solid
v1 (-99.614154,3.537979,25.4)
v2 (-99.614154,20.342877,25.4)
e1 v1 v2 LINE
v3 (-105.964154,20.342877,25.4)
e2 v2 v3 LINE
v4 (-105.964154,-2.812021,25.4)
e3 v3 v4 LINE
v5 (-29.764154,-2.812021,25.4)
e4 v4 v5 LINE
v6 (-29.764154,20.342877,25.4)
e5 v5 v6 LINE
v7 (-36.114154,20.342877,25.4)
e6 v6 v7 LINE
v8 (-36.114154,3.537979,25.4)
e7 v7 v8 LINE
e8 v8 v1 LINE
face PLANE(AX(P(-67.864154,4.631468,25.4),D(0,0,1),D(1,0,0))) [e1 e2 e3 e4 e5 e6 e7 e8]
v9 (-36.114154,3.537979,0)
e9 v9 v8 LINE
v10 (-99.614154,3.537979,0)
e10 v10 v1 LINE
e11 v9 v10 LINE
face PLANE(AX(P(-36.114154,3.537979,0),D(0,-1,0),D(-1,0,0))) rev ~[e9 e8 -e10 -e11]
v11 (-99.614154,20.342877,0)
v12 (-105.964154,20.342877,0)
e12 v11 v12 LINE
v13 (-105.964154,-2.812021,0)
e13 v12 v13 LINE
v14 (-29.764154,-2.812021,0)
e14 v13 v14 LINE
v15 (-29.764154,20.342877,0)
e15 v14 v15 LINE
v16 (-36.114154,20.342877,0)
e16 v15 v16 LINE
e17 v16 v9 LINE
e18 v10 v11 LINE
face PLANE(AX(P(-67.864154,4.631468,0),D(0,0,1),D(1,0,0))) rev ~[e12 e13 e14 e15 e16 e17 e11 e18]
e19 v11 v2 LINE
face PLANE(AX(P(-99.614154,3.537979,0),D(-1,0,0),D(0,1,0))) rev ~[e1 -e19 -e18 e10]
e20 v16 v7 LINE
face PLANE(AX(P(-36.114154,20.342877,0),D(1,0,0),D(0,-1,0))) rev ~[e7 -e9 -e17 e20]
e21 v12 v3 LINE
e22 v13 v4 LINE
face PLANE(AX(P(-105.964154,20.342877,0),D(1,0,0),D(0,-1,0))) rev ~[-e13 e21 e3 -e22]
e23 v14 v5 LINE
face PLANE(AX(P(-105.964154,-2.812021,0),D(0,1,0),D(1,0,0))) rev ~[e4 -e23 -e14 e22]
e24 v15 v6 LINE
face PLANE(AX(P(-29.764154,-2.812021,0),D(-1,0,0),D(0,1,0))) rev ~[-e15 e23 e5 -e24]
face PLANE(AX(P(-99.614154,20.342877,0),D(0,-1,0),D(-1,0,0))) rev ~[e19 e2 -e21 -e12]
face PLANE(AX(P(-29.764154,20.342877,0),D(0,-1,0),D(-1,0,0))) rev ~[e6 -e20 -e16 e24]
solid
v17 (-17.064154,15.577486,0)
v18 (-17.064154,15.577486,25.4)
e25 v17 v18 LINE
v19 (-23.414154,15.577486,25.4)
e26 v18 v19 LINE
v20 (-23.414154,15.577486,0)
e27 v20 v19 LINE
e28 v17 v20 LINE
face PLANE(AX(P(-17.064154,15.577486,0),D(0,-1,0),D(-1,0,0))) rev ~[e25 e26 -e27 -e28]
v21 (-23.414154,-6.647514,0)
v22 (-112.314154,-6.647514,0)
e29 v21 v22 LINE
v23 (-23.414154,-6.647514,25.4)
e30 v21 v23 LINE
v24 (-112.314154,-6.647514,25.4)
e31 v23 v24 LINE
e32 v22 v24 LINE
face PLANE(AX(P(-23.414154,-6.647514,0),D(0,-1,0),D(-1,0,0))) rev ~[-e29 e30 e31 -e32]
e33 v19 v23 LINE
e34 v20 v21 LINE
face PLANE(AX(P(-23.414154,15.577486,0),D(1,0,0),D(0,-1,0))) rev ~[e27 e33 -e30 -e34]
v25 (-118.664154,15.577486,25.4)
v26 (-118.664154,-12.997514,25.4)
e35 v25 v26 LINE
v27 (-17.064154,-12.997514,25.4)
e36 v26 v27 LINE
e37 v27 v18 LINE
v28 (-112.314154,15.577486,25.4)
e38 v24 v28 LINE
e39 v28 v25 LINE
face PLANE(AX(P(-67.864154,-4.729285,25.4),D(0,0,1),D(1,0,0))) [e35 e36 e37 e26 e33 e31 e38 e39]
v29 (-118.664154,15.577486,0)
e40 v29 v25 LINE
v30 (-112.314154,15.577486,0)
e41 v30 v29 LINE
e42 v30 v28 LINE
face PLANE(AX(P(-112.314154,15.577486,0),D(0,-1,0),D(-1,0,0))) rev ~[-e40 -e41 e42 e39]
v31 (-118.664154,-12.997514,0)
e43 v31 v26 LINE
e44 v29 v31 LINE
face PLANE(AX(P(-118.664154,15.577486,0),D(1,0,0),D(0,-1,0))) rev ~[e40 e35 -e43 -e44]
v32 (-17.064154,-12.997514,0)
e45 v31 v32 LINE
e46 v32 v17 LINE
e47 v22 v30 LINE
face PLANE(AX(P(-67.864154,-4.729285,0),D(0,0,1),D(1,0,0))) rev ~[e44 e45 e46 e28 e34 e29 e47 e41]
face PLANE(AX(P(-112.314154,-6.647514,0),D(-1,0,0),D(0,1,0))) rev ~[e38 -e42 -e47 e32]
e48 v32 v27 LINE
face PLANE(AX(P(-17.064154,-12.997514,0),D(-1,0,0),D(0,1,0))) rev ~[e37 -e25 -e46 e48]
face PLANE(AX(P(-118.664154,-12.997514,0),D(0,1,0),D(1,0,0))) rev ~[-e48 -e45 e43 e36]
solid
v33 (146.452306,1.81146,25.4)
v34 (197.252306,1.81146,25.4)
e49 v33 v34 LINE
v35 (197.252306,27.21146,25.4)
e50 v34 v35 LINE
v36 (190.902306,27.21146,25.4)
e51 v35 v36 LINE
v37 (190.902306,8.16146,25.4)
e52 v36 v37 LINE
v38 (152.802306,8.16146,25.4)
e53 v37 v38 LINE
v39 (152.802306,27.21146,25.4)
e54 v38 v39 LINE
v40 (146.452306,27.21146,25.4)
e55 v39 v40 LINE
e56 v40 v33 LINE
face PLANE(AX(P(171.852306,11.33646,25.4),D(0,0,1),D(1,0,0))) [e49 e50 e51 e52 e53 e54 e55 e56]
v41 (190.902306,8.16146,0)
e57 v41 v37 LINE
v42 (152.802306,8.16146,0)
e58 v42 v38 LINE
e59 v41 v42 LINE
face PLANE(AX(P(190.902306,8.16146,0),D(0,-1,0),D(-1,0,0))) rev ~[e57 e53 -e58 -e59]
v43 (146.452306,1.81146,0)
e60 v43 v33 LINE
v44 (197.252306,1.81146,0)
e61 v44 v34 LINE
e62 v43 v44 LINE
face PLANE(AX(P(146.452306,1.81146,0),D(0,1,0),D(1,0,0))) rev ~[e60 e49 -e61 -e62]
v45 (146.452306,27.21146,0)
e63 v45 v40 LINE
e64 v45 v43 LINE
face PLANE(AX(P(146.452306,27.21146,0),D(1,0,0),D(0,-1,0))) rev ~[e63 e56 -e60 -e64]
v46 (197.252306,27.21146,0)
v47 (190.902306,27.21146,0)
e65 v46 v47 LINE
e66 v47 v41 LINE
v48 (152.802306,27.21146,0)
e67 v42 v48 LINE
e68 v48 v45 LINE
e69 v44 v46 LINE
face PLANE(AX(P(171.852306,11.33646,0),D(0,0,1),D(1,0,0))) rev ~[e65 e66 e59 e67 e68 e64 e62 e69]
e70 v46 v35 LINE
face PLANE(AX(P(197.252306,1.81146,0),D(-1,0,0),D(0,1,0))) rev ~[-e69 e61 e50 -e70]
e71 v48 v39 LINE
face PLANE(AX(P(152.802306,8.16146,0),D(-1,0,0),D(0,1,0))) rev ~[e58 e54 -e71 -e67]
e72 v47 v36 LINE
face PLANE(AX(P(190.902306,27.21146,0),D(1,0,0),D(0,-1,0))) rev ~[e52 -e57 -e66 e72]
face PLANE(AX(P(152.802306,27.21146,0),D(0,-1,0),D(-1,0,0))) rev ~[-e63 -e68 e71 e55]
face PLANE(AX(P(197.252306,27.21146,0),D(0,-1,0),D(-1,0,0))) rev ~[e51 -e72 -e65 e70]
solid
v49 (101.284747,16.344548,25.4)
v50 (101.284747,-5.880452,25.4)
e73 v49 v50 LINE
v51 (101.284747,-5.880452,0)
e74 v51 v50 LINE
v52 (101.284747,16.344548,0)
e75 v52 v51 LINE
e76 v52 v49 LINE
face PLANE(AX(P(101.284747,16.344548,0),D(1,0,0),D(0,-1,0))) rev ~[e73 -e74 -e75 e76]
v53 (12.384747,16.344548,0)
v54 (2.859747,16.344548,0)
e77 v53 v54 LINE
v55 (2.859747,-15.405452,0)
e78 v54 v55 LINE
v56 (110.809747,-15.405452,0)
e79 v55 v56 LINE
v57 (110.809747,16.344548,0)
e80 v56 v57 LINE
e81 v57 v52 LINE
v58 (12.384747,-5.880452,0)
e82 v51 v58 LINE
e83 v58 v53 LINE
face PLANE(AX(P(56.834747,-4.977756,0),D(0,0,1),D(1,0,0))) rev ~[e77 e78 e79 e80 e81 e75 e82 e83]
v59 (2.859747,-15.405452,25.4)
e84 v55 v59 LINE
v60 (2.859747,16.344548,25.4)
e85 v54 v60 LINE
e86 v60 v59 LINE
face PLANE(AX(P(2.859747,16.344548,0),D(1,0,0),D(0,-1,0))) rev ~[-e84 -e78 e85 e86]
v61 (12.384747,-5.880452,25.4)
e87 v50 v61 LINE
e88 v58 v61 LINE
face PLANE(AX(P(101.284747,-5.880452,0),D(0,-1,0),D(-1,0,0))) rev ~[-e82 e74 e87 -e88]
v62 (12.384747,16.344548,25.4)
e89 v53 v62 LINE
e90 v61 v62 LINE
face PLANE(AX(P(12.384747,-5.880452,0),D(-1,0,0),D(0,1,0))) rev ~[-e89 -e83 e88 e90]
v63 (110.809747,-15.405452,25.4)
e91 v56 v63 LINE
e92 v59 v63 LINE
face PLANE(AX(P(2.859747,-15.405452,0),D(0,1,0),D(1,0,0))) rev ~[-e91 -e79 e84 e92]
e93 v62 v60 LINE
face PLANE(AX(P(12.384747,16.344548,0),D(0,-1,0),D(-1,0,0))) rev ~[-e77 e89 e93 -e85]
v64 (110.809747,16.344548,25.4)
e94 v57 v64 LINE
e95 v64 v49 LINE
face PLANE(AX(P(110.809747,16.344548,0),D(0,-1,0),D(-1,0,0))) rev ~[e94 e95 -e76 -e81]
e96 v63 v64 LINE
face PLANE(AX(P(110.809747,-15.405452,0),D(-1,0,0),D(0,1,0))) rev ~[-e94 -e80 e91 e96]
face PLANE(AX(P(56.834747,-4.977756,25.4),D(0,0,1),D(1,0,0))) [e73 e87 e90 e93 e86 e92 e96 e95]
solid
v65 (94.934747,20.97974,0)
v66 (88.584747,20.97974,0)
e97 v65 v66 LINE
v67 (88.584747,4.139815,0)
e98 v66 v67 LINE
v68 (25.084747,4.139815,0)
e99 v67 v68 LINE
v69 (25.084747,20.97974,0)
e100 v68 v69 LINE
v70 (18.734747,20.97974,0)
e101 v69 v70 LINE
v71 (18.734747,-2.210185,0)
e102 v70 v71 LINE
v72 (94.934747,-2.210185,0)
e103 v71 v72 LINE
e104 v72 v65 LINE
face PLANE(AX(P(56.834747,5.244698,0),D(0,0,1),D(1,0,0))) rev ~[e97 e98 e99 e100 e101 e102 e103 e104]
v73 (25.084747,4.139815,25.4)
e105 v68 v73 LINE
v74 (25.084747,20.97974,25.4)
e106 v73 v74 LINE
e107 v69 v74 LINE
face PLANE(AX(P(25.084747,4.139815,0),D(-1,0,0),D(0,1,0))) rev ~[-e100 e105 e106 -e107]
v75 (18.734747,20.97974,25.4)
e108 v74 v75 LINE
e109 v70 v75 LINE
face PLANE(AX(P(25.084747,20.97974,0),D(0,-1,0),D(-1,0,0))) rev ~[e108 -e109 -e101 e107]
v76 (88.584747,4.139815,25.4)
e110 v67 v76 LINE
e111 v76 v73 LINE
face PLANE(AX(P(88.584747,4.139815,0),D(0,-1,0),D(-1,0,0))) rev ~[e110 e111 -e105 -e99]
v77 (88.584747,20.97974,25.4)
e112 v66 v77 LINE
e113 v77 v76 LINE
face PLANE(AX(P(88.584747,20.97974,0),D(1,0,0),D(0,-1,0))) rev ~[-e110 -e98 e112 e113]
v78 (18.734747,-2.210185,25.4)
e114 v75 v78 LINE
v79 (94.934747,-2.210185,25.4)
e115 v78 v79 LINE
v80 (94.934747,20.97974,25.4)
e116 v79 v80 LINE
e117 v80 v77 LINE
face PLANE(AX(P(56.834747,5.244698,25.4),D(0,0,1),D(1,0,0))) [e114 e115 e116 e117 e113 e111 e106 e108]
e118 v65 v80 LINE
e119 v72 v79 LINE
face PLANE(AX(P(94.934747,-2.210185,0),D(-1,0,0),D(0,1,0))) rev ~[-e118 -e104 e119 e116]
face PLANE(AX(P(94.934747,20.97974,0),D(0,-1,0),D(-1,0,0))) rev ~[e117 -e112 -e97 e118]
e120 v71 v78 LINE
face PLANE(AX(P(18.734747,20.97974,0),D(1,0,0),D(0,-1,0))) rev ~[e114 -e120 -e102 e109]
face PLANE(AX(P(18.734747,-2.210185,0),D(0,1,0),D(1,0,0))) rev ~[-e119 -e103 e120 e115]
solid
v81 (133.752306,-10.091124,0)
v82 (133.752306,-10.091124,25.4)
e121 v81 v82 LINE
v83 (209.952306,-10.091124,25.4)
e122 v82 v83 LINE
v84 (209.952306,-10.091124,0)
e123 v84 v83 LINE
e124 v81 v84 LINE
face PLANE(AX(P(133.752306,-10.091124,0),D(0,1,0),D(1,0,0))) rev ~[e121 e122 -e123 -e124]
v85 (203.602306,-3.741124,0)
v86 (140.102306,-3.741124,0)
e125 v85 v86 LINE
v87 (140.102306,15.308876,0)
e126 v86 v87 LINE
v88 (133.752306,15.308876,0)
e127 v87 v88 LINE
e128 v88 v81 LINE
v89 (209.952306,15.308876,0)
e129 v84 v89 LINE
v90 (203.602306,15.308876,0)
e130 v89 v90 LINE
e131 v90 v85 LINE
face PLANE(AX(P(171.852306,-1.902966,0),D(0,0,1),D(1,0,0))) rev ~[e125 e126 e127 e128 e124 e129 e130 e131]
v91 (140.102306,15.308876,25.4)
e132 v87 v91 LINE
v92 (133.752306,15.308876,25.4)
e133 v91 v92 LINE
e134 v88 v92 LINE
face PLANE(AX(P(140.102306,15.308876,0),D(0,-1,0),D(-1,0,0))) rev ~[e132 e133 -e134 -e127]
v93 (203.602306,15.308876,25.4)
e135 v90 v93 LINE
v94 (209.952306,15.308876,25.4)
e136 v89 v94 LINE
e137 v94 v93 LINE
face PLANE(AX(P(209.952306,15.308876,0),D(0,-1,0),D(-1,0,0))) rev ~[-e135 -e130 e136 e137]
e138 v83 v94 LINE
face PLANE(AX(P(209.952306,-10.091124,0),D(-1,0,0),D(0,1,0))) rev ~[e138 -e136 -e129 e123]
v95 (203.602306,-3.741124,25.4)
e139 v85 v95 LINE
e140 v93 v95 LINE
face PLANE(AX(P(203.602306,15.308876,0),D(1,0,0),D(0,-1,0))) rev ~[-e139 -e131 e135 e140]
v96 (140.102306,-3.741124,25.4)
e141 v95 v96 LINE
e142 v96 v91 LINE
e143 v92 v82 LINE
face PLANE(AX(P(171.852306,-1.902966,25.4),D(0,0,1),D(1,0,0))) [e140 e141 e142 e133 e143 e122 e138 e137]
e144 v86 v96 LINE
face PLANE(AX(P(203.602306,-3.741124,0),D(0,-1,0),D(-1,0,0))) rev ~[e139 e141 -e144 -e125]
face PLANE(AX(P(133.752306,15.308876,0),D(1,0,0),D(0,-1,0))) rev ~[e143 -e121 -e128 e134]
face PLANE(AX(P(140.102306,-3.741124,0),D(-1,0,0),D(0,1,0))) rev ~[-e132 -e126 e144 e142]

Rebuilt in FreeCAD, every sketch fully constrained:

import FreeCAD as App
import Part
import Sketcher

V = App.Vector
Q = App.Units.Quantity

doc = App.newDocument("Part")
body = doc.addObject("PartDesign::Body", "Body")
body.AllowCompound = True

sketch1 = body.newObject("Sketcher::SketchObject", "Sketch")
sketch1.AttachmentSupport = (doc.getObject("XY_Plane"), [""])
sketch1.MapMode = "FlatFace"
sketch1.addGeometry([
    Part.LineSegment(V(-118.664154, 15.577486, 0), V(-118.664154, -12.997514, 0)),
    Part.LineSegment(V(-118.664154, -12.997514, 0), V(-17.064154, -12.997514, 0)),
    Part.LineSegment(V(-17.064154, -12.997514, 0), V(-17.064154, 15.577486, 0)),
    Part.LineSegment(V(-17.064154, 15.577486, 0), V(-23.414154, 15.577486, 0)),
    Part.LineSegment(V(-23.414154, 15.577486, 0), V(-23.414154, -6.647514, 0)),
    Part.LineSegment(V(-23.414154, -6.647514, 0), V(-112.314154, -6.647514, 0)),
    Part.LineSegment(V(-112.314154, -6.647514, 0), V(-112.314154, 15.577486, 0)),
    Part.LineSegment(V(-112.314154, 15.577486, 0), V(-118.664154, 15.577486, 0)),
    Part.LineSegment(V(-99.614154, 20.342877, 0), V(-105.964154, 20.342877, 0)),
    Part.LineSegment(V(-105.964154, 20.342877, 0), V(-105.964154, -2.812021, 0)),
    Part.LineSegment(V(-105.964154, -2.812021, 0), V(-29.764154, -2.812021, 0)),
    Part.LineSegment(V(-29.764154, -2.812021, 0), V(-29.764154, 20.342877, 0)),
    Part.LineSegment(V(-29.764154, 20.342877, 0), V(-36.114154, 20.342877, 0)),
    Part.LineSegment(V(-36.114154, 20.342877, 0), V(-36.114154, 3.537979, 0)),
    Part.LineSegment(V(-36.114154, 3.537979, 0), V(-99.614154, 3.537979, 0)),
    Part.LineSegment(V(-99.614154, 3.537979, 0), V(-99.614154, 20.342877, 0)),
], False)
sketch1.addConstraint([
    Sketcher.Constraint("Coincident", 0, 2, 1, 1),
    Sketcher.Constraint("Coincident", 1, 2, 2, 1),
    Sketcher.Constraint("Coincident", 2, 2, 3, 1),
    Sketcher.Constraint("Coincident", 3, 2, 4, 1),
    Sketcher.Constraint("Coincident", 4, 2, 5, 1),
    Sketcher.Constraint("Coincident", 5, 2, 6, 1),
    Sketcher.Constraint("Coincident", 6, 2, 7, 1),
    Sketcher.Constraint("Coincident", 7, 2, 0, 1),
    Sketcher.Constraint("Coincident", 8, 2, 9, 1),
    Sketcher.Constraint("Coincident", 9, 2, 10, 1),
    Sketcher.Constraint("Coincident", 10, 2, 11, 1),
    Sketcher.Constraint("Coincident", 11, 2, 12, 1),
    Sketcher.Constraint("Coincident", 12, 2, 13, 1),
    Sketcher.Constraint("Coincident", 13, 2, 14, 1),
    Sketcher.Constraint("Coincident", 14, 2, 15, 1),
    Sketcher.Constraint("Coincident", 15, 2, 8, 1),
    Sketcher.Constraint("Vertical", 0),
    Sketcher.Constraint("Horizontal", 1),
    Sketcher.Constraint("Vertical", 2),
    Sketcher.Constraint("Horizontal", 3),
    Sketcher.Constraint("Vertical", 4),
    Sketcher.Constraint("Horizontal", 5),
    Sketcher.Constraint("Vertical", 6),
    Sketcher.Constraint("Horizontal", 7),
    Sketcher.Constraint("Horizontal", 8),
    Sketcher.Constraint("Vertical", 9),
    Sketcher.Constraint("Horizontal", 10),
    Sketcher.Constraint("Vertical", 11),
    Sketcher.Constraint("Horizontal", 12),
    Sketcher.Constraint("Vertical", 13),
    Sketcher.Constraint("Horizontal", 14),
    Sketcher.Constraint("Vertical", 15),
    Sketcher.Constraint("Horizontal", 3, 2, 6, 2),
    Sketcher.Constraint("Horizontal", 8, 2, 11, 2),
    Sketcher.Constraint("Equal", 3, 7),
    Sketcher.Constraint("Equal", 7, 8),
    Sketcher.Constraint("Equal", 8, 12),
    Sketcher.Constraint("DistanceX", 1, 1, 1, 2, Q("4 in")),
    Sketcher.Constraint("DistanceX", 10, 1, 10, 2, Q("3 in")),
    Sketcher.Constraint("DistanceX", 5, 2, 5, 1, Q("3.5 in")),
    Sketcher.Constraint("DistanceX", 7, 2, 8, 2, Q("0.5 in")),
    Sketcher.Constraint("DistanceY", 0, 2, 0, 1, Q("1.125 in")),
    Sketcher.Constraint("DistanceY", 4, 2, 4, 1, Q("0.875 in")),
    Sketcher.Constraint("DistanceY", 10, 2, 13, 2, Q("0.25 in")),
    Sketcher.Constraint("DistanceY", 9, 2, 9, 1, 23.154898),
    Sketcher.Constraint("DistanceY", 9, 2, -1, 1, 2.812021),
    Sketcher.Constraint("DistanceY", 6, 2, 8, 2, 4.765391),
    Sketcher.Constraint("DistanceX", 0, 2, -1, 1, 118.664154),
])
pad1 = body.newObject("PartDesign::Pad", "Pad")
pad1.Profile = sketch1
pad1.Length = Q("1 in")
body2 = doc.addObject("PartDesign::Body", "Body001")
body2.AllowCompound = True

sketch2 = body2.newObject("Sketcher::SketchObject", "Sketch001")
sketch2.AttachmentSupport = (doc.getObject("XY_Plane001"), [""])
sketch2.MapMode = "FlatFace"
sketch2.addGeometry([
    Part.LineSegment(V(12.384747, 16.344548, 0), V(2.859747, 16.344548, 0)),
    Part.LineSegment(V(2.859747, 16.344548, 0), V(2.859747, -15.405452, 0)),
    Part.LineSegment(V(2.859747, -15.405452, 0), V(110.809747, -15.405452, 0)),
    Part.LineSegment(V(110.809747, -15.405452, 0), V(110.809747, 16.344548, 0)),
    Part.LineSegment(V(110.809747, 16.344548, 0), V(101.284747, 16.344548, 0)),
    Part.LineSegment(V(101.284747, 16.344548, 0), V(101.284747, -5.880452, 0)),
    Part.LineSegment(V(101.284747, -5.880452, 0), V(12.384747, -5.880452, 0)),
    Part.LineSegment(V(12.384747, -5.880452, 0), V(12.384747, 16.344548, 0)),
    Part.LineSegment(V(25.084747, 20.97974, 0), V(18.734747, 20.97974, 0)),
    Part.LineSegment(V(18.734747, 20.97974, 0), V(18.734747, -2.210185, 0)),
    Part.LineSegment(V(18.734747, -2.210185, 0), V(94.934747, -2.210185, 0)),
    Part.LineSegment(V(94.934747, -2.210185, 0), V(94.934747, 20.97974, 0)),
    Part.LineSegment(V(94.934747, 20.97974, 0), V(88.584747, 20.97974, 0)),
    Part.LineSegment(V(88.584747, 20.97974, 0), V(88.584747, 4.139815, 0)),
    Part.LineSegment(V(88.584747, 4.139815, 0), V(25.084747, 4.139815, 0)),
    Part.LineSegment(V(25.084747, 4.139815, 0), V(25.084747, 20.97974, 0)),
], False)
sketch2.addConstraint([
    Sketcher.Constraint("Coincident", 0, 2, 1, 1),
    Sketcher.Constraint("Coincident", 1, 2, 2, 1),
    Sketcher.Constraint("Coincident", 2, 2, 3, 1),
    Sketcher.Constraint("Coincident", 3, 2, 4, 1),
    Sketcher.Constraint("Coincident", 4, 2, 5, 1),
    Sketcher.Constraint("Coincident", 5, 2, 6, 1),
    Sketcher.Constraint("Coincident", 6, 2, 7, 1),
    Sketcher.Constraint("Coincident", 7, 2, 0, 1),
    Sketcher.Constraint("Coincident", 8, 2, 9, 1),
    Sketcher.Constraint("Coincident", 9, 2, 10, 1),
    Sketcher.Constraint("Coincident", 10, 2, 11, 1),
    Sketcher.Constraint("Coincident", 11, 2, 12, 1),
    Sketcher.Constraint("Coincident", 12, 2, 13, 1),
    Sketcher.Constraint("Coincident", 13, 2, 14, 1),
    Sketcher.Constraint("Coincident", 14, 2, 15, 1),
    Sketcher.Constraint("Coincident", 15, 2, 8, 1),
    Sketcher.Constraint("Horizontal", 0),
    Sketcher.Constraint("Vertical", 1),
    Sketcher.Constraint("Horizontal", 2),
    Sketcher.Constraint("Vertical", 3),
    Sketcher.Constraint("Horizontal", 4),
    Sketcher.Constraint("Vertical", 5),
    Sketcher.Constraint("Horizontal", 6),
    Sketcher.Constraint("Vertical", 7),
    Sketcher.Constraint("Horizontal", 8),
    Sketcher.Constraint("Vertical", 9),
    Sketcher.Constraint("Horizontal", 10),
    Sketcher.Constraint("Vertical", 11),
    Sketcher.Constraint("Horizontal", 12),
    Sketcher.Constraint("Vertical", 13),
    Sketcher.Constraint("Horizontal", 14),
    Sketcher.Constraint("Vertical", 15),
    Sketcher.Constraint("Horizontal", 0, 2, 3, 2),
    Sketcher.Constraint("Horizontal", 8, 2, 11, 2),
    Sketcher.Constraint("Equal", 0, 4),
    Sketcher.Constraint("Equal", 8, 12),
    Sketcher.Constraint("DistanceX", 10, 1, 10, 2, Q("3 in")),
    Sketcher.Constraint("DistanceX", 6, 2, 6, 1, Q("3.5 in")),
    Sketcher.Constraint("DistanceX", 14, 2, 14, 1, Q("2.5 in")),
    Sketcher.Constraint("DistanceX", 2, 1, 2, 2, Q("4.25 in")),
    Sketcher.Constraint("DistanceY", 1, 2, 1, 1, Q("1.25 in")),
    Sketcher.Constraint("DistanceX", 12, 2, 4, 2, Q("0.5 in")),
    Sketcher.Constraint("DistanceY", 5, 2, 5, 1, Q("0.875 in")),
    Sketcher.Constraint("DistanceY", 10, 2, 13, 2, Q("0.25 in")),
    Sketcher.Constraint("DistanceY", 9, 2, 9, 1, 23.189925),
    Sketcher.Constraint("DistanceY", -1, 1, 8, 2, 20.97974),
    Sketcher.Constraint("DistanceY", 6, 2, 8, 2, 26.860192),
    Sketcher.Constraint("DistanceX", -1, 1, 0, 2, 2.859747),
])
pad2 = body2.newObject("PartDesign::Pad", "Pad001")
pad2.Profile = sketch2
pad2.Length = Q("1 in")
body3 = doc.addObject("PartDesign::Body", "Body002")
body3.AllowCompound = True

sketch3 = body3.newObject("Sketcher::SketchObject", "Sketch002")
sketch3.AttachmentSupport = (doc.getObject("XY_Plane002"), [""])
sketch3.MapMode = "FlatFace"
sketch3.addGeometry([
    Part.LineSegment(V(140.102306, 15.308876, 0), V(133.752306, 15.308876, 0)),
    Part.LineSegment(V(133.752306, 15.308876, 0), V(133.752306, -10.091124, 0)),
    Part.LineSegment(V(133.752306, -10.091124, 0), V(209.952306, -10.091124, 0)),
    Part.LineSegment(V(209.952306, -10.091124, 0), V(209.952306, 15.308876, 0)),
    Part.LineSegment(V(209.952306, 15.308876, 0), V(203.602306, 15.308876, 0)),
    Part.LineSegment(V(203.602306, 15.308876, 0), V(203.602306, -3.741124, 0)),
    Part.LineSegment(V(203.602306, -3.741124, 0), V(140.102306, -3.741124, 0)),
    Part.LineSegment(V(140.102306, -3.741124, 0), V(140.102306, 15.308876, 0)),
    Part.LineSegment(V(152.802306, 27.21146, 0), V(146.452306, 27.21146, 0)),
    Part.LineSegment(V(146.452306, 27.21146, 0), V(146.452306, 1.81146, 0)),
    Part.LineSegment(V(146.452306, 1.81146, 0), V(197.252306, 1.81146, 0)),
    Part.LineSegment(V(197.252306, 1.81146, 0), V(197.252306, 27.21146, 0)),
    Part.LineSegment(V(197.252306, 27.21146, 0), V(190.902306, 27.21146, 0)),
    Part.LineSegment(V(190.902306, 27.21146, 0), V(190.902306, 8.16146, 0)),
    Part.LineSegment(V(190.902306, 8.16146, 0), V(152.802306, 8.16146, 0)),
    Part.LineSegment(V(152.802306, 8.16146, 0), V(152.802306, 27.21146, 0)),
], False)
sketch3.addConstraint([
    Sketcher.Constraint("Coincident", 0, 2, 1, 1),
    Sketcher.Constraint("Coincident", 1, 2, 2, 1),
    Sketcher.Constraint("Coincident", 2, 2, 3, 1),
    Sketcher.Constraint("Coincident", 3, 2, 4, 1),
    Sketcher.Constraint("Coincident", 4, 2, 5, 1),
    Sketcher.Constraint("Coincident", 5, 2, 6, 1),
    Sketcher.Constraint("Coincident", 6, 2, 7, 1),
    Sketcher.Constraint("Coincident", 7, 2, 0, 1),
    Sketcher.Constraint("Coincident", 8, 2, 9, 1),
    Sketcher.Constraint("Coincident", 9, 2, 10, 1),
    Sketcher.Constraint("Coincident", 10, 2, 11, 1),
    Sketcher.Constraint("Coincident", 11, 2, 12, 1),
    Sketcher.Constraint("Coincident", 12, 2, 13, 1),
    Sketcher.Constraint("Coincident", 13, 2, 14, 1),
    Sketcher.Constraint("Coincident", 14, 2, 15, 1),
    Sketcher.Constraint("Coincident", 15, 2, 8, 1),
    Sketcher.Constraint("Horizontal", 0),
    Sketcher.Constraint("Vertical", 1),
    Sketcher.Constraint("Horizontal", 2),
    Sketcher.Constraint("Vertical", 3),
    Sketcher.Constraint("Horizontal", 4),
    Sketcher.Constraint("Vertical", 5),
    Sketcher.Constraint("Horizontal", 6),
    Sketcher.Constraint("Vertical", 7),
    Sketcher.Constraint("Horizontal", 8),
    Sketcher.Constraint("Vertical", 9),
    Sketcher.Constraint("Horizontal", 10),
    Sketcher.Constraint("Vertical", 11),
    Sketcher.Constraint("Horizontal", 12),
    Sketcher.Constraint("Vertical", 13),
    Sketcher.Constraint("Horizontal", 14),
    Sketcher.Constraint("Vertical", 15),
    Sketcher.Constraint("Horizontal", 0, 2, 3, 2),
    Sketcher.Constraint("Horizontal", 8, 2, 11, 2),
    Sketcher.Constraint("Equal", 0, 4),
    Sketcher.Constraint("Equal", 4, 8),
    Sketcher.Constraint("Equal", 8, 12),
    Sketcher.Constraint("Equal", 3, 9),
    Sketcher.Constraint("Equal", 7, 13),
    Sketcher.Constraint("DistanceX", 2, 1, 2, 2, Q("3 in")),
    Sketcher.Constraint("DistanceX", 10, 1, 10, 2, Q("2 in")),
    Sketcher.Constraint("DistanceY", 1, 2, 1, 1, Q("1 in")),
    Sketcher.Constraint("DistanceX", 6, 2, 6, 1, Q("2.5 in")),
    Sketcher.Constraint("DistanceY", 5, 2, 5, 1, Q("0.75 in")),
    Sketcher.Constraint("DistanceX", 0, 2, 8, 2, Q("0.5 in")),
    Sketcher.Constraint("DistanceY", -1, 1, 8, 2, 27.21146),
    Sketcher.Constraint("DistanceX", -1, 1, 0, 2, 133.752306),
    Sketcher.Constraint("DistanceY", -1, 1, 0, 2, 15.308876),
])
pad3 = body3.newObject("PartDesign::Pad", "Pad002")
pad3.Profile = sketch3
pad3.Length = Q("1 in")

doc.recompute()
